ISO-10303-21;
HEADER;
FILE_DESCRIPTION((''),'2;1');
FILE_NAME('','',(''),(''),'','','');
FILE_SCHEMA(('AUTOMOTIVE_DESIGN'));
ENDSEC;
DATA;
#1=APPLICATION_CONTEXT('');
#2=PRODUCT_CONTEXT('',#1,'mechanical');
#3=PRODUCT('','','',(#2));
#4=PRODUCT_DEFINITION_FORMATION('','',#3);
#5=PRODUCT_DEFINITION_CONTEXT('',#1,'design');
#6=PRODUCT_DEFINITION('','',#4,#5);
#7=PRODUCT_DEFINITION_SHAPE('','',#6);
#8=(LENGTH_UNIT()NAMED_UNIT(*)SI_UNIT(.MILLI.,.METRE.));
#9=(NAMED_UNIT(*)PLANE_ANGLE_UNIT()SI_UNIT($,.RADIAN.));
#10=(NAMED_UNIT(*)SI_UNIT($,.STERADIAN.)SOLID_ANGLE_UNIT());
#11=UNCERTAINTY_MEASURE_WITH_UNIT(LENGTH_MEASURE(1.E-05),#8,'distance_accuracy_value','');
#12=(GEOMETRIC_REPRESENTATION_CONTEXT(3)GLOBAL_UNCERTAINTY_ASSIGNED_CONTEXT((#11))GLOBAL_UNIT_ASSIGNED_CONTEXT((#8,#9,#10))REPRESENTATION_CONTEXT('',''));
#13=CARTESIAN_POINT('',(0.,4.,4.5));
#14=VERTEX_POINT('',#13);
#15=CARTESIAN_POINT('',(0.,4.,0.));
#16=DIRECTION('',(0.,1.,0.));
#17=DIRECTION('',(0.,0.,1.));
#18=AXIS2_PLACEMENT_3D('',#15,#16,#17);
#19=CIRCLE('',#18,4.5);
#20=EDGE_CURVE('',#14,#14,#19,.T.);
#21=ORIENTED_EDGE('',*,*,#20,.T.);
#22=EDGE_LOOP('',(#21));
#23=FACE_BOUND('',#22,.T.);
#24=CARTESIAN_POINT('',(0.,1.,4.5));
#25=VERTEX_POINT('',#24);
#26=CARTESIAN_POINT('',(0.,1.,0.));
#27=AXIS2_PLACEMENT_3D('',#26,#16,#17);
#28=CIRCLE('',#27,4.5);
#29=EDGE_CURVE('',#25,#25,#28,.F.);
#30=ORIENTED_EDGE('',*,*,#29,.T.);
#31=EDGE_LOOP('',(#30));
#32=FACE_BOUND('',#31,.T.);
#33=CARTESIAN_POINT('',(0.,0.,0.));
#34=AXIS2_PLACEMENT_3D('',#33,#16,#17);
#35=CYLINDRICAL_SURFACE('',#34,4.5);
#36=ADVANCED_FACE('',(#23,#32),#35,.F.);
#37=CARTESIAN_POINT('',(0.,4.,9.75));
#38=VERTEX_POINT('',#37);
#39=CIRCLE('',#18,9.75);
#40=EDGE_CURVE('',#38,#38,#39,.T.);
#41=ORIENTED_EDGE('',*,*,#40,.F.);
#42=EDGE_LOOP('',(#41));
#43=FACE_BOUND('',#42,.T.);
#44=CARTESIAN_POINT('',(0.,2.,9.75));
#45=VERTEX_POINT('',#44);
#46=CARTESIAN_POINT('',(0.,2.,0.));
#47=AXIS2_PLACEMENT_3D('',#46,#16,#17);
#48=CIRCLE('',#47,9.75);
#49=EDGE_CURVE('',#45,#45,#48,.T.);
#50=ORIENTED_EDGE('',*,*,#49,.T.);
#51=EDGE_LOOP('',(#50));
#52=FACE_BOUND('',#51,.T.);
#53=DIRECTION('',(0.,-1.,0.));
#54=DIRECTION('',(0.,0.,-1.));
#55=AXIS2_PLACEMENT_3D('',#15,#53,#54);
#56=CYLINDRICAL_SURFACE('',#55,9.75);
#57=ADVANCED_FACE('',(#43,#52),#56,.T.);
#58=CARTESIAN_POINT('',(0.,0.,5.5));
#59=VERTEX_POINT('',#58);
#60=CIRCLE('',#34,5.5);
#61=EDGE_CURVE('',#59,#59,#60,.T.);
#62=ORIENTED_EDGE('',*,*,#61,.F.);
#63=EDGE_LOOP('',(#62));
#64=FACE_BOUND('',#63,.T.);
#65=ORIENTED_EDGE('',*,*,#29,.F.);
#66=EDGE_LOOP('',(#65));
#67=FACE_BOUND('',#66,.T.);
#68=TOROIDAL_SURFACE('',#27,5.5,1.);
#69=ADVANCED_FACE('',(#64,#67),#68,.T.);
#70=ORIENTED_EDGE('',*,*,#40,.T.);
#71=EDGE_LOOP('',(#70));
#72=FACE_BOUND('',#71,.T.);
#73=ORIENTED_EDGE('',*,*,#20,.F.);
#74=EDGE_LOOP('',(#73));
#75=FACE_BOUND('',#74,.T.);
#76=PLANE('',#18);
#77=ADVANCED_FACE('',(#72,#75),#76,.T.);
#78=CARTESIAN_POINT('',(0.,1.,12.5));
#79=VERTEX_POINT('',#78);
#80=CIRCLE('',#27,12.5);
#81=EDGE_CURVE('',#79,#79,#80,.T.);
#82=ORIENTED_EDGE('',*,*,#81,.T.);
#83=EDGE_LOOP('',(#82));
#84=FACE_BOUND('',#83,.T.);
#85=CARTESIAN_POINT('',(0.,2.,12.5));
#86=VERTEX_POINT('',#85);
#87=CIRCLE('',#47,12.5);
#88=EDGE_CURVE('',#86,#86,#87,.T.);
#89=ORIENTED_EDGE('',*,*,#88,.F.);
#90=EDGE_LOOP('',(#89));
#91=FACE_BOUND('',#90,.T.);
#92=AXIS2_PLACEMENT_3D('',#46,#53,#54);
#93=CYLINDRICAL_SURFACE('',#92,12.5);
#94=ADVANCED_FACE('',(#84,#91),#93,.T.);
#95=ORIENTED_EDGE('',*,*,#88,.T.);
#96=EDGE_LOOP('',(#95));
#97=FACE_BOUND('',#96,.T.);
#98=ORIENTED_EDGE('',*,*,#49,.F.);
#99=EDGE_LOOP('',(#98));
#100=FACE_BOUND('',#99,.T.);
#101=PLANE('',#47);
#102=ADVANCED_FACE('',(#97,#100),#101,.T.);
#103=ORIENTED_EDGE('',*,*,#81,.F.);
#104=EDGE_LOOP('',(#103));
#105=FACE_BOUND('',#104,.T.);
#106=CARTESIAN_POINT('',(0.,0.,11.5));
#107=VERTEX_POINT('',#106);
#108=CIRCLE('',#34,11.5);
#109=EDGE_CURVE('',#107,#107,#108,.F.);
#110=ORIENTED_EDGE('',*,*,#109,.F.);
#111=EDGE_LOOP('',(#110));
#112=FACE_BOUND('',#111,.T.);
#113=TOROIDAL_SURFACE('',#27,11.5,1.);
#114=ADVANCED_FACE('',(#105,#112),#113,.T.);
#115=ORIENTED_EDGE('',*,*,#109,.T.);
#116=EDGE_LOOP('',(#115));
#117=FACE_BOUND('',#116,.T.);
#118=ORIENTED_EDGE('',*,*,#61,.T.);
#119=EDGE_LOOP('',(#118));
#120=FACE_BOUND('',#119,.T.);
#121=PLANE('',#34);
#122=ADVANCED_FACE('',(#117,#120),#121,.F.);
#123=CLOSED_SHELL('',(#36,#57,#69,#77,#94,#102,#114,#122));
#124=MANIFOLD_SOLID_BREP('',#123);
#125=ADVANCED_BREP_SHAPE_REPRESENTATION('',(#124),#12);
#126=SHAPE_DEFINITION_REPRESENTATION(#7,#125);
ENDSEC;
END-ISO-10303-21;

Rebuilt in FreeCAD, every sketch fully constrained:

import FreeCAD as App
import Part
import Sketcher
from FreeCAD import Vector


def edges_at(feature, points):
    """Names of the edges that pass closest to the given points."""
    edges = feature.Shape.Edges
    near = lambda p: min(range(len(edges)), key=lambda i: edges[i].distToShape(Part.Vertex(*p))[0])
    return sorted({f"Edge{near(p) + 1}" for p in points})

doc = App.newDocument("Part")
body = doc.addObject("PartDesign::Body", "Body")

# Sketch on XZ plane
sketch1 = body.newObject("Sketcher::SketchObject", "Sketch")
sketch1.AttachmentSupport = (doc.getObject("XZ_Plane"), [""])
sketch1.MapMode = "FlatFace"
sketch1.addGeometry(Part.Circle(Vector(0, 0, 0), Vector(0, 0, 1), 12), False)
sketch1.addConstraint(Sketcher.Constraint("Coincident", 0, 3, -1, 1))
sketch1.addConstraint(Sketcher.Constraint("Diameter", 0, 25.0))
pad1 = body.newObject("PartDesign::Pad", "Pad")
pad1.Profile = sketch1
pad1.Length = 2
pad1.Reversed = True

# Sketch on XZ plane
sketch2 = body.newObject("Sketcher::SketchObject", "Sketch001")
sketch2.AttachmentSupport = (doc.getObject("XZ_Plane"), [""])
sketch2.MapMode = "FlatFace"
sketch2.AttachmentOffset = App.Placement(Vector(0, 0, -2), App.Rotation())
sketch2.addGeometry(Part.Circle(Vector(0, 0, 0), Vector(0, 0, 1), 10), False)
sketch2.addConstraint(Sketcher.Constraint("Coincident", 0, 3, -1, 1))
sketch2.addConstraint(Sketcher.Constraint("Diameter", 0, 19.5))
pad2 = body.newObject("PartDesign::Pad", "Pad001")
pad2.Profile = sketch2
pad2.Length = 2
pad2.Reversed = True

# Sketch on XZ plane
sketch3 = body.newObject("Sketcher::SketchObject", "Sketch002")
sketch3.AttachmentSupport = (doc.getObject("XZ_Plane"), [""])
sketch3.MapMode = "FlatFace"
sketch3.AttachmentOffset = App.Placement(Vector(0, 0, -4), App.Rotation())
sketch3.addGeometry(Part.Circle(Vector(0, 0, 0), Vector(0, 0, 1), 4.5), False)
sketch3.addConstraint(Sketcher.Constraint("Coincident", 0, 3, -1, 1))
sketch3.addConstraint(Sketcher.Constraint("Diameter", 0, 9.0))
pocket1 = body.newObject("PartDesign::Pocket", "Pocket")
pocket1.Profile = sketch3
pocket1.Type = "ThroughAll"
pocket1.Reversed = True
doc.recompute()

fillet = body.newObject("PartDesign::Fillet", "Fillet")
fillet.Base = (pocket1, edges_at(pocket1, [(0, 0, -4.5), (0, 0, -12.5)]))
fillet.Radius = 1

doc.recompute()
